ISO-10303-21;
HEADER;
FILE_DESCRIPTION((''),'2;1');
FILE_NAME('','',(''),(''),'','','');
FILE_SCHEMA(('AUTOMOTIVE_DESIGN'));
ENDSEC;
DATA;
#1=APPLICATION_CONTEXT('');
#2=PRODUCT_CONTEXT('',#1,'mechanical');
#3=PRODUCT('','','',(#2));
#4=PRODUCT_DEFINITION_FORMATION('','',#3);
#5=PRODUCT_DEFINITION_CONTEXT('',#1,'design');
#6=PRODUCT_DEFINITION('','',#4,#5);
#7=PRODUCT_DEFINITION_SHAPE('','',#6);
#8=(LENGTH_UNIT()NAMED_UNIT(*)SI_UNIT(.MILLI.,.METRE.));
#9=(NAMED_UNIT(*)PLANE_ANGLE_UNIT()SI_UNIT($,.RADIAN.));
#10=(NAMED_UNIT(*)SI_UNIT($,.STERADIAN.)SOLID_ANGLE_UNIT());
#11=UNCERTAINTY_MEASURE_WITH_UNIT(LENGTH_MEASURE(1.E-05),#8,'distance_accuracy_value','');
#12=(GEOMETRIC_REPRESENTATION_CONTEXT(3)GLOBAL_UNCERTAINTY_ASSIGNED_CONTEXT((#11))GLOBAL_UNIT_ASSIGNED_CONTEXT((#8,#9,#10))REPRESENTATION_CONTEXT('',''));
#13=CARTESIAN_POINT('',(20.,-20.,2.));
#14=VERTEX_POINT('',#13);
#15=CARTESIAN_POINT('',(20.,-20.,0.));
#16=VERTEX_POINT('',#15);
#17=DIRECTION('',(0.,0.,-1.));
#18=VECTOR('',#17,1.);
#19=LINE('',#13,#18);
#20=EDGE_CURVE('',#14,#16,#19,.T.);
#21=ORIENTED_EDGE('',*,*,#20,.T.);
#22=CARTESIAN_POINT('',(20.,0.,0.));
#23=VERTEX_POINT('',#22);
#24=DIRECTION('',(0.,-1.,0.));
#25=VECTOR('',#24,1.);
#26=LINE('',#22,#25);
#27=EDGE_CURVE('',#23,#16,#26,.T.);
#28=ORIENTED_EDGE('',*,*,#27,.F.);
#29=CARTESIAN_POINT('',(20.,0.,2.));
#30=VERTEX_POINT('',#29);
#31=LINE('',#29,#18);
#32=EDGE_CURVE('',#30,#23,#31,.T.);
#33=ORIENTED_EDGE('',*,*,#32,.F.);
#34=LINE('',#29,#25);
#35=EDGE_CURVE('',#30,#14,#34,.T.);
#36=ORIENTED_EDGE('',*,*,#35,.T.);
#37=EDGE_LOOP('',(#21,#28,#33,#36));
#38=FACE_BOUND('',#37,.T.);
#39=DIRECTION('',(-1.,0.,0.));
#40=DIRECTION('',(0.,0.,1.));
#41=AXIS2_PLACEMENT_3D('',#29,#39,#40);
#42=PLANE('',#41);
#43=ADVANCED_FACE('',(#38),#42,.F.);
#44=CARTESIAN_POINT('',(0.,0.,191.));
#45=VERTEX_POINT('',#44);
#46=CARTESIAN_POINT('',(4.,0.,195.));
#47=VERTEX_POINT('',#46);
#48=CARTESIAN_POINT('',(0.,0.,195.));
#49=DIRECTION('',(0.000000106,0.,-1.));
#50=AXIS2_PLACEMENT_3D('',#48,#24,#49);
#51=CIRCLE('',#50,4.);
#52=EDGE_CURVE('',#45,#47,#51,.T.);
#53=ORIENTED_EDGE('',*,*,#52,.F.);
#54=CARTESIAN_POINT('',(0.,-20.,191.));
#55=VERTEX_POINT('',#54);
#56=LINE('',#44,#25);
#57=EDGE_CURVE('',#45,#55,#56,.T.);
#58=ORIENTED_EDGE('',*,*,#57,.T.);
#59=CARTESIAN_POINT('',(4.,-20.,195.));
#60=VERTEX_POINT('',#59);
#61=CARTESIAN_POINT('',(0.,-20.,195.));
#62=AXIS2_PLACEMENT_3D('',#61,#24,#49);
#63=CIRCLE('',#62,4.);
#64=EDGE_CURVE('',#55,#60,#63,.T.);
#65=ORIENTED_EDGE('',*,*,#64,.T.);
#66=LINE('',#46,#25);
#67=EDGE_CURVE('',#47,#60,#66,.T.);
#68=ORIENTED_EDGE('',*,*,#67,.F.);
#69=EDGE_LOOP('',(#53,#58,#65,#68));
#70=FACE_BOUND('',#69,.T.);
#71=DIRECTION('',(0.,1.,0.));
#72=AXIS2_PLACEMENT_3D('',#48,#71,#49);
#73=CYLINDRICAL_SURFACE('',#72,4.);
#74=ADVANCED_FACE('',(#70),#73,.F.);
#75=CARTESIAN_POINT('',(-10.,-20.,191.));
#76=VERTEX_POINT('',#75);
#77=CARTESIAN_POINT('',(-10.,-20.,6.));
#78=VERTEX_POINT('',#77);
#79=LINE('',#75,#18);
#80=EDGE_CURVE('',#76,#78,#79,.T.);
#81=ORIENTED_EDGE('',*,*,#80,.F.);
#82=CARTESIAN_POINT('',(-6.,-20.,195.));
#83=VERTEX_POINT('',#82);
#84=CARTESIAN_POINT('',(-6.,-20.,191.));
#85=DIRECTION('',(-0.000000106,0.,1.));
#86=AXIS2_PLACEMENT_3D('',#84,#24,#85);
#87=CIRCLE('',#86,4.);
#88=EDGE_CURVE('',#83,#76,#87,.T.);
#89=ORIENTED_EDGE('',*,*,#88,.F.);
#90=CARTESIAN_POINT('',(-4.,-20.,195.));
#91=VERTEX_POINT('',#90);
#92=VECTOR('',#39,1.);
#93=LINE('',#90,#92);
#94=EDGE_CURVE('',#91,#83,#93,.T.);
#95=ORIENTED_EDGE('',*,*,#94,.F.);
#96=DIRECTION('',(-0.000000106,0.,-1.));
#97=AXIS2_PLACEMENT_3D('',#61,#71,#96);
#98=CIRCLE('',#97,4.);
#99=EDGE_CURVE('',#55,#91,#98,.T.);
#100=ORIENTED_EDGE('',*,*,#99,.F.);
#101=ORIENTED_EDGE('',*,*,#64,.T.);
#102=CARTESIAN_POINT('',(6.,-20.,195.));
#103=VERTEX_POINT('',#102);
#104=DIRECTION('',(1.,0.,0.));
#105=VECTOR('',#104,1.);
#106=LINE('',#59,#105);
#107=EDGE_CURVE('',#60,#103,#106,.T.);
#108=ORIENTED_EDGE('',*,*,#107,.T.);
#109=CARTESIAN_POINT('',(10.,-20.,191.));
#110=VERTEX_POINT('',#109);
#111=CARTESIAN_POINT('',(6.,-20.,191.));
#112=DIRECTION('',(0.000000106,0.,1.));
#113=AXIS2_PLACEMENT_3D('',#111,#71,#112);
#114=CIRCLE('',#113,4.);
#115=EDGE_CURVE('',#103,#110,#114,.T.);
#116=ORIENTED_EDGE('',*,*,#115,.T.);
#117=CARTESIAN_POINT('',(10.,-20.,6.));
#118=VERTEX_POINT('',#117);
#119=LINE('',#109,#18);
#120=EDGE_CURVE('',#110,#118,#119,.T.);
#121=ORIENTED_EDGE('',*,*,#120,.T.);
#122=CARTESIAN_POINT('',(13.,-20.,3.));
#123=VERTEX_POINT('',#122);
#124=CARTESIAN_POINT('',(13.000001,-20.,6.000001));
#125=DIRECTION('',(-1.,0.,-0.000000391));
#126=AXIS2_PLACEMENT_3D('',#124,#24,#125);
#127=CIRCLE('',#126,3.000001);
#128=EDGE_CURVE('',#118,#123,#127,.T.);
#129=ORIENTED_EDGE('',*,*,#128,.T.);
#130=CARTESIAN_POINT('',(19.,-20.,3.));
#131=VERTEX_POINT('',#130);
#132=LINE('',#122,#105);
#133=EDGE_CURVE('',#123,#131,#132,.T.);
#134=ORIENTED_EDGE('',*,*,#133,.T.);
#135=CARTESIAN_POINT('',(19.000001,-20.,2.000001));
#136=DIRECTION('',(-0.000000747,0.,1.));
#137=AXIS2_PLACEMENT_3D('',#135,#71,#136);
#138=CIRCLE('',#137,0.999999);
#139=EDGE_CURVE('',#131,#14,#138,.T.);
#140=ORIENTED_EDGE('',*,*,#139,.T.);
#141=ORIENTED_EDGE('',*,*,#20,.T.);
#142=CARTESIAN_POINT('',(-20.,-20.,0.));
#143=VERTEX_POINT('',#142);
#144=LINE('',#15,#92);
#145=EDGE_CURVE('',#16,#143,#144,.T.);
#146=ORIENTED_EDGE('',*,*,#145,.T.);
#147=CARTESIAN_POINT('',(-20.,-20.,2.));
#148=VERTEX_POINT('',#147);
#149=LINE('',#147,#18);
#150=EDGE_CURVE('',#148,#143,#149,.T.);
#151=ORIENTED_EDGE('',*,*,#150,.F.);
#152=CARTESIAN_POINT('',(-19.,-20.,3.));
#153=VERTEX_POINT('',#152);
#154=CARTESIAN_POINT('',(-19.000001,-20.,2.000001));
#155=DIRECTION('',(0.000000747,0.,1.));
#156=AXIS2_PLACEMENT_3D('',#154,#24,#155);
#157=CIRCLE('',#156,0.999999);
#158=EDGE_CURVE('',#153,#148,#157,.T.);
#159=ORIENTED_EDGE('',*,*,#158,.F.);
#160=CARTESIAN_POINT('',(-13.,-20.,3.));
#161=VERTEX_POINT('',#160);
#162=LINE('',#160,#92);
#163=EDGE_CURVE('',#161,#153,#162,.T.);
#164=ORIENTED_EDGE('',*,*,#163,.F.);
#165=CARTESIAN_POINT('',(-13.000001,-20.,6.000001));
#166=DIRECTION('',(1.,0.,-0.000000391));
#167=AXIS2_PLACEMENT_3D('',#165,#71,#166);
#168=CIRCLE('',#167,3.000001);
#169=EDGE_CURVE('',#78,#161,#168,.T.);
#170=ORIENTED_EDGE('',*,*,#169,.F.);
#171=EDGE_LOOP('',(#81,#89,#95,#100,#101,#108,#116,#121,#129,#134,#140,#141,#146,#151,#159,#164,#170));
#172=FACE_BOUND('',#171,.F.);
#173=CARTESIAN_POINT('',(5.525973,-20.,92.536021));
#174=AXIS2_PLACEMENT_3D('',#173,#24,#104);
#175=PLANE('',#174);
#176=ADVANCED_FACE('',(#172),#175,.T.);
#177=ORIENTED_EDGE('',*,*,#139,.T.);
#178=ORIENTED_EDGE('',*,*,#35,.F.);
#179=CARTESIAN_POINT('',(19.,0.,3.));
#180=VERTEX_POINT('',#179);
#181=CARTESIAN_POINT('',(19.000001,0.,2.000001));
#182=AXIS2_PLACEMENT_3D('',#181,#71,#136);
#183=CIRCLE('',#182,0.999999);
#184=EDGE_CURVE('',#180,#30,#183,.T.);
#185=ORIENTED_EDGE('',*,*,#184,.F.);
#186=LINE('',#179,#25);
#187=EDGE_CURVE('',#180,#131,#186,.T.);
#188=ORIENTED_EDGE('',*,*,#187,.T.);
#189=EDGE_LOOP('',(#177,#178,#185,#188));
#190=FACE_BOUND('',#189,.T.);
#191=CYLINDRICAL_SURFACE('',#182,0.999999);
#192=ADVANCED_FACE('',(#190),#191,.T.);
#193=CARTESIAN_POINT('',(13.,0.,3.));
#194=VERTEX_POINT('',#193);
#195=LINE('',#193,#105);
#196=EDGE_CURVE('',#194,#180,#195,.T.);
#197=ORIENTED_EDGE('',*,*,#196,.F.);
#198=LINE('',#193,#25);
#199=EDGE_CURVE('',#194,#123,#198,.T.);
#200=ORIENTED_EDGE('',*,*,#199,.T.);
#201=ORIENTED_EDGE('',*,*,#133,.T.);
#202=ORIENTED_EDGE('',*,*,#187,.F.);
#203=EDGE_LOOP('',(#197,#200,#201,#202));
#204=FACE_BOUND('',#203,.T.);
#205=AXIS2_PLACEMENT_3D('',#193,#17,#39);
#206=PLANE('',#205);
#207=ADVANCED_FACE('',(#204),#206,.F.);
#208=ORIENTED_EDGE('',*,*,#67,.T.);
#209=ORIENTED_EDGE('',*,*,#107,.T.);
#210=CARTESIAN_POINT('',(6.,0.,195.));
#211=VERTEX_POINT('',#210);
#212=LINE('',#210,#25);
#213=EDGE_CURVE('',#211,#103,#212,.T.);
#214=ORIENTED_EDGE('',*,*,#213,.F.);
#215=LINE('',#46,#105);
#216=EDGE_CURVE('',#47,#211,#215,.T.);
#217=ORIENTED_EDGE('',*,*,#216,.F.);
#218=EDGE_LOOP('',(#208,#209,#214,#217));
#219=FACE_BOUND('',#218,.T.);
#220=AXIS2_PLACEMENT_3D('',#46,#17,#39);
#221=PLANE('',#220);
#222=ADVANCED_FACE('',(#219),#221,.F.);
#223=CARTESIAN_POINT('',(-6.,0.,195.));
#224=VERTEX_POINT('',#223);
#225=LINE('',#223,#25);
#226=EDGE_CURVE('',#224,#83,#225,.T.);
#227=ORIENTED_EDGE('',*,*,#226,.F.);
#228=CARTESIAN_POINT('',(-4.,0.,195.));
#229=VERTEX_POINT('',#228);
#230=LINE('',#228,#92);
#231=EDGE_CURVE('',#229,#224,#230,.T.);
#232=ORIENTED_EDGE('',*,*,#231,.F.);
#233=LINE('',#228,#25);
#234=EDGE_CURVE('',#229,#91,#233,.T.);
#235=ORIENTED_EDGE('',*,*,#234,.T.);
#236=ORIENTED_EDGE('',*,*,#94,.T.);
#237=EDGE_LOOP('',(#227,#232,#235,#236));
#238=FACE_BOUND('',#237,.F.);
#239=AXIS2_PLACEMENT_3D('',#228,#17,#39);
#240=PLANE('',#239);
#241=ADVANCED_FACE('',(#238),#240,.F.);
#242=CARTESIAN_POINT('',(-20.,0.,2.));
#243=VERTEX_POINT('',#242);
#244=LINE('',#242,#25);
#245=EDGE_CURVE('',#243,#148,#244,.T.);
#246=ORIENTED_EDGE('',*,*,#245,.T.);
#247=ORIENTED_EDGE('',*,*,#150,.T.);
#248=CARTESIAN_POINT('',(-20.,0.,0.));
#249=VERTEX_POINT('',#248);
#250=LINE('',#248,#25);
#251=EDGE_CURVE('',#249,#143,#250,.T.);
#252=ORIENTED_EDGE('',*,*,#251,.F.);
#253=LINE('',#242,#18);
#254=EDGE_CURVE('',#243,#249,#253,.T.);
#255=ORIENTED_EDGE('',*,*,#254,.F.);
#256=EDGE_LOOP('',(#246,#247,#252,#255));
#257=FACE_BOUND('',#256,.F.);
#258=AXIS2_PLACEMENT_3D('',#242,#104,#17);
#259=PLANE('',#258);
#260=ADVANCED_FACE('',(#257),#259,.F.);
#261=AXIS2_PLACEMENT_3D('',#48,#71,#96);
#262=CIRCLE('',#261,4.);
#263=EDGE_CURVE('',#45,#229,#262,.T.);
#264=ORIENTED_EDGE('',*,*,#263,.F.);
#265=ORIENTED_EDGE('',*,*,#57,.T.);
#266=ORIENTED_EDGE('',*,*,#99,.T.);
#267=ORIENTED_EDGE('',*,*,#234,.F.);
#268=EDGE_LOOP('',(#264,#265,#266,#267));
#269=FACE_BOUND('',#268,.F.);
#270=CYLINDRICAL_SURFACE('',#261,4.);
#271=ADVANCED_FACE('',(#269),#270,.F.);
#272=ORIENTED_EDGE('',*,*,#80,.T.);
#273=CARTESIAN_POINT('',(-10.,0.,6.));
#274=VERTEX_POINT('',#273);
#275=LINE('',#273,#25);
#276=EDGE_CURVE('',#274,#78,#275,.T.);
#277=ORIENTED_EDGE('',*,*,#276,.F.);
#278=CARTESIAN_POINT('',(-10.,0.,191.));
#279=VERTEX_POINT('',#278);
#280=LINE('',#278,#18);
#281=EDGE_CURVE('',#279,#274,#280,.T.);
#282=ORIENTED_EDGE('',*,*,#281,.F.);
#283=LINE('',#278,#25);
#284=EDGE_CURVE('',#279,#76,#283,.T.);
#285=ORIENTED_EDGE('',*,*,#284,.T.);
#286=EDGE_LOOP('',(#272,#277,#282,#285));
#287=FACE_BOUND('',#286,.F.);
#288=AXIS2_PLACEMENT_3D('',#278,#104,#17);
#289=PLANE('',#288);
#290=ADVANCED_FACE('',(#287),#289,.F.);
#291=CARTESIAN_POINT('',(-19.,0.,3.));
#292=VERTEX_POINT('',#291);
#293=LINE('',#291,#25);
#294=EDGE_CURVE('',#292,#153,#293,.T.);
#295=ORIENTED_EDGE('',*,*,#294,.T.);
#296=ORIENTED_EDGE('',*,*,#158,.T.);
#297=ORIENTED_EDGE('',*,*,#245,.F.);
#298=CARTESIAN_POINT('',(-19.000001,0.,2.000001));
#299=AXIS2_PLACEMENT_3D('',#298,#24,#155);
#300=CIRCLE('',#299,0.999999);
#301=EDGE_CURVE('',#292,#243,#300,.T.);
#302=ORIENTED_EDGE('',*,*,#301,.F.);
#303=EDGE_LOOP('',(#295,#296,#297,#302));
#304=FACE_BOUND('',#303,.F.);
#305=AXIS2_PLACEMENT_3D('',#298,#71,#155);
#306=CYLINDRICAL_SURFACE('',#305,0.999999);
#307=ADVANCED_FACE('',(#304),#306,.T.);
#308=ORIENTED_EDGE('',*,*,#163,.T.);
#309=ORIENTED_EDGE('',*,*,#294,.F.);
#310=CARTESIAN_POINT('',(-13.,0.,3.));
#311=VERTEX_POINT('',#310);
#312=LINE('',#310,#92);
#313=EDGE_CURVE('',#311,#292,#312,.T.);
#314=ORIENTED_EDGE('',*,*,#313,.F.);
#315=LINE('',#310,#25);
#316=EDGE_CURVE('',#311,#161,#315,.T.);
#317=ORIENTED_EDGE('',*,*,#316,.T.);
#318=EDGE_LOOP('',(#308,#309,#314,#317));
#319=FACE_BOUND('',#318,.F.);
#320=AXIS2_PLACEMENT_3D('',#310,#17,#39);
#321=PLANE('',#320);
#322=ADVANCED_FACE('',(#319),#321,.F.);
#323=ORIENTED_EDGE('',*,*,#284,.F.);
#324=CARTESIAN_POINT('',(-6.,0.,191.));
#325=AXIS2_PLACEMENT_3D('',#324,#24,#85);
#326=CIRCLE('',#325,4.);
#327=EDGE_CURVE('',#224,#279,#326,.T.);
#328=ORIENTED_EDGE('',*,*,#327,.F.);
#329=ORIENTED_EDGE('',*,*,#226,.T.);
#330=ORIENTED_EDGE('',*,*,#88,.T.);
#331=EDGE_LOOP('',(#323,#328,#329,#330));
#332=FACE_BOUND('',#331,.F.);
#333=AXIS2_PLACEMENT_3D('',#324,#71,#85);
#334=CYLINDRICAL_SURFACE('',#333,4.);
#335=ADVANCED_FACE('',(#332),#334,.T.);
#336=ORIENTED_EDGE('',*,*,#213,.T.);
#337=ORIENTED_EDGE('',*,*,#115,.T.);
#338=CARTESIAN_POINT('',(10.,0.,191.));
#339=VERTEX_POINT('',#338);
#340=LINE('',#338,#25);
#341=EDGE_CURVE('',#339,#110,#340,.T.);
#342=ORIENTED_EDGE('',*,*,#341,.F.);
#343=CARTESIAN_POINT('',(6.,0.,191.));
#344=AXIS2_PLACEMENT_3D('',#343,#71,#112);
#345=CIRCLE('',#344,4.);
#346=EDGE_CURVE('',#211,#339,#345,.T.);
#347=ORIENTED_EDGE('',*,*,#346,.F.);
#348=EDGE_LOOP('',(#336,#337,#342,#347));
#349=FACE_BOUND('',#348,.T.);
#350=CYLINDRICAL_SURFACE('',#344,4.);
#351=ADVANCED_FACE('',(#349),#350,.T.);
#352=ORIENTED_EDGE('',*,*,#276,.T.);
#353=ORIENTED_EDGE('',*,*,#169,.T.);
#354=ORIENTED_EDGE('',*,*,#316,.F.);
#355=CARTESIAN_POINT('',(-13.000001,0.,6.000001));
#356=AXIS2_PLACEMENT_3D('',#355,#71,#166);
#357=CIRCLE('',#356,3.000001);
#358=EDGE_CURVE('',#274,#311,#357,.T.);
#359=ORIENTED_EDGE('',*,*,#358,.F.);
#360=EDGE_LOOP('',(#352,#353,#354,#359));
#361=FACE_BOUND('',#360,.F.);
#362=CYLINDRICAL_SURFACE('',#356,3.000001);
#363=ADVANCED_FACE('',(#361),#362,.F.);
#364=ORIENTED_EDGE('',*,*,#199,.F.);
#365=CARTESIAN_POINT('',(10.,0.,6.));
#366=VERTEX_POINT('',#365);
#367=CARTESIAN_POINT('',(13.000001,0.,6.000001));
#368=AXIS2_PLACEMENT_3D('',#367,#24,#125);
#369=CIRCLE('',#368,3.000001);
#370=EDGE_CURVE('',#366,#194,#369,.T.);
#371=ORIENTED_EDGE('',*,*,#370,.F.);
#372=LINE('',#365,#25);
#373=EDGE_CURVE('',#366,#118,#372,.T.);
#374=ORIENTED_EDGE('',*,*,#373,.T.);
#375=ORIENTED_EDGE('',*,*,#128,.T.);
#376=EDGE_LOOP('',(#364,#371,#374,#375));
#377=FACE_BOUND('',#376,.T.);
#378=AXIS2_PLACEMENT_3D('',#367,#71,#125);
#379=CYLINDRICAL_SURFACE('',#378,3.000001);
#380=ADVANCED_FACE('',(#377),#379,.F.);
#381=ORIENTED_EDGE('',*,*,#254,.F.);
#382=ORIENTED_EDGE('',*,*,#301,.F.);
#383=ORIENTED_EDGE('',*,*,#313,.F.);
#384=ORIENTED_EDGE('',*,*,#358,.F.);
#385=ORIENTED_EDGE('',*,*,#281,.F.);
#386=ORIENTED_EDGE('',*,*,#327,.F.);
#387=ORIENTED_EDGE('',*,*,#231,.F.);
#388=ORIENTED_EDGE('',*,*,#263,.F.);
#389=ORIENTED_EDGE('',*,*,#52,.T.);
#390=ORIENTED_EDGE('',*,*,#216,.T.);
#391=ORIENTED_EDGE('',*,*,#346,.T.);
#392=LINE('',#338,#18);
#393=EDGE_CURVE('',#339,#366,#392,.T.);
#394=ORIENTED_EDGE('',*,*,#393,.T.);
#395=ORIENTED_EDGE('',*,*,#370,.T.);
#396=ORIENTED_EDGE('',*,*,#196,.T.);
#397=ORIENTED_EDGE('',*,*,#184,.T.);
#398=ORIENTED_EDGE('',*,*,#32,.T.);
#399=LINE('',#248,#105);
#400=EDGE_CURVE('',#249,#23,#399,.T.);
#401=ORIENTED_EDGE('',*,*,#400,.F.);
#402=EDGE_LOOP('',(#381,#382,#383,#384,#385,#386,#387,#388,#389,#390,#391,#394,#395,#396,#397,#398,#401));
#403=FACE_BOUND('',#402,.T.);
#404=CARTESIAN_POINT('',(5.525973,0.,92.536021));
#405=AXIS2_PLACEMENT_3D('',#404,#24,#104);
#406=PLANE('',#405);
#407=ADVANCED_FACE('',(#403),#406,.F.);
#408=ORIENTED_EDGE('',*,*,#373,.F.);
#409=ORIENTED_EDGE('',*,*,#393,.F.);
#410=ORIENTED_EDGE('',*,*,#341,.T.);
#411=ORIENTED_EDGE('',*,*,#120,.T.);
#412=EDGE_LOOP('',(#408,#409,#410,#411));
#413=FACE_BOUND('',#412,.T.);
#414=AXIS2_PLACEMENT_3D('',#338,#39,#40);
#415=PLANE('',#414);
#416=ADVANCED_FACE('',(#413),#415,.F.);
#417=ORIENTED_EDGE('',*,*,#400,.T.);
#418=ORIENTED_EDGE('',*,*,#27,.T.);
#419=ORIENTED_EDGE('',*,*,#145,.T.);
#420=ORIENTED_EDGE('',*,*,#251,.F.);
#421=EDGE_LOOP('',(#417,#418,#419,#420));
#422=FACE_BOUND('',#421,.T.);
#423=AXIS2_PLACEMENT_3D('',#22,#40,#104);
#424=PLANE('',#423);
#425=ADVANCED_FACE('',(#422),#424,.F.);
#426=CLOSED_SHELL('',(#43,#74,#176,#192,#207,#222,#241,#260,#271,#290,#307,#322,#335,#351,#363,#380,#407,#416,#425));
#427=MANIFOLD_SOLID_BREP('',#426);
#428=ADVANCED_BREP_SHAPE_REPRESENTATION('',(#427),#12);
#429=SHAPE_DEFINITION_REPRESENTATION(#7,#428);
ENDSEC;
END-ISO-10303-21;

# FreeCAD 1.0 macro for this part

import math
import FreeCAD as App
import Part
import Sketcher
from FreeCAD import Vector

doc = App.newDocument("Part")
body = doc.addObject("PartDesign::Body", "Body")

# Sketch on XZ plane
sketch1 = doc.addObject("Sketcher::SketchObject", "Sketch")
body.addObject(sketch1)
sketch1.AttachmentSupport = (doc.XZ_Plane, [""])
sketch1.MapMode = "FlatFace"
sketch1.addGeometry(Part.LineSegment(Vector(-20, 0, 0), Vector(0, 0, 0)), False)
sketch1.addGeometry(Part.LineSegment(Vector(0, 0, 0), Vector(0, 191, 0)), False)
sketch1.addGeometry(Part.ArcOfCircle(Part.Circle(Vector(0, 195, 0), Vector(0, 0, 1), 4), math.radians(-179.999994), math.radians(-90.000006)), False)
sketch1.addGeometry(Part.LineSegment(Vector(-4, 195, 0), Vector(-6, 195, 0)), False)
sketch1.addGeometry(Part.ArcOfCircle(Part.Circle(Vector(-6, 191, 0), Vector(0, 0, 1), 4), math.radians(90.000006), math.radians(179.999994)), False)
sketch1.addGeometry(Part.LineSegment(Vector(-10, 191, 0), Vector(-10, 6, 0)), False)
sketch1.addGeometry(Part.ArcOfCircle(Part.Circle(Vector(-13.000001, 6.000001, 0), Vector(0, 0, 1), 3.000001), math.radians(-89.999978), math.radians(-0.000022)), False)
sketch1.addGeometry(Part.LineSegment(Vector(-13, 3, 0), Vector(-19, 3, 0)), False)
sketch1.addGeometry(Part.ArcOfCircle(Part.Circle(Vector(-19.000001, 2.000001, 0), Vector(0, 0, 1), 0.999999), math.radians(89.999957), math.radians(180.000043)), False)
sketch1.addGeometry(Part.LineSegment(Vector(-20, 2, 0), Vector(-20, 0, 0)), False)
sketch1.addConstraint(Sketcher.Constraint("Coincident", 0, 2, 1, 1))
sketch1.addConstraint(Sketcher.Constraint("Coincident", 1, 2, 2, 2))
sketch1.addConstraint(Sketcher.Constraint("Coincident", 2, 1, 3, 1))
sketch1.addConstraint(Sketcher.Constraint("Tangent", 3, 2, 4, 1))
sketch1.addConstraint(Sketcher.Constraint("Tangent", 4, 2, 5, 1))
sketch1.addConstraint(Sketcher.Constraint("Tangent", 5, 2, 6, 2))
sketch1.addConstraint(Sketcher.Constraint("Tangent", 6, 1, 7, 1))
sketch1.addConstraint(Sketcher.Constraint("Tangent", 7, 2, 8, 1))
sketch1.addConstraint(Sketcher.Constraint("Tangent", 8, 2, 9, 1))
sketch1.addConstraint(Sketcher.Constraint("Coincident", 9, 2, 0, 1))
sketch1.addConstraint(Sketcher.Constraint("Horizontal", 0))
sketch1.addConstraint(Sketcher.Constraint("Vertical", 1))
sketch1.addConstraint(Sketcher.Constraint("Horizontal", 3))
sketch1.addConstraint(Sketcher.Constraint("Vertical", 5))
sketch1.addConstraint(Sketcher.Constraint("Horizontal", 7))
sketch1.addConstraint(Sketcher.Constraint("Vertical", 9))
sketch1.addConstraint(Sketcher.Constraint("Coincident", 0, 2, -1, 1))
sketch1.addConstraint(Sketcher.Constraint("Equal", 2, 4))
sketch1.addConstraint(Sketcher.Constraint("PointOnObject", 2, 3, -2))
sketch1.addConstraint(Sketcher.Constraint("Horizontal", 4, 3, 1, 2))
sketch1.addConstraint(Sketcher.Constraint("Equal", 3, 9))
sketch1.addConstraint(Sketcher.Constraint("Radius", 2, 4.0))
sketch1.addConstraint(Sketcher.Constraint("Radius", 6, 3.000001))
sketch1.addConstraint(Sketcher.Constraint("Radius", 8, 0.999999))
sketch1.addConstraint(Sketcher.Constraint("DistanceX", 0, 1, 0, 2, 20.0))
sketch1.addConstraint(Sketcher.Constraint("DistanceX", 3, 2, 3, 1, 2.0))
sketch1.addConstraint(Sketcher.Constraint("DistanceY", 1, 1, 1, 2, 191.0))
pad1 = doc.addObject("PartDesign::Pad", "Pad")
body.addObject(pad1)
pad1.Profile = sketch1
pad1.Length = 20
body2 = doc.addObject("PartDesign::Body", "Body001")
doc.recompute()

body2.BaseFeature = body
doc.recompute()

mirroring = doc.addObject("Part::Mirroring", "Mirroring")
mirroring.Source = body
mirroring.Base = Vector(0, -10, 95.5)
mirroring.Normal = Vector(1, 0, 0)
body3 = doc.addObject("PartDesign::Body", "Body002")
body3.BaseFeature = mirroring
boolean = doc.addObject("PartDesign::Boolean", "Boolean")
body2.addObject(boolean)
boolean.Type = "Fuse"
boolean.addObjects([body3])
doc.recompute()
mirroring.Visibility = False

doc.recompute()
